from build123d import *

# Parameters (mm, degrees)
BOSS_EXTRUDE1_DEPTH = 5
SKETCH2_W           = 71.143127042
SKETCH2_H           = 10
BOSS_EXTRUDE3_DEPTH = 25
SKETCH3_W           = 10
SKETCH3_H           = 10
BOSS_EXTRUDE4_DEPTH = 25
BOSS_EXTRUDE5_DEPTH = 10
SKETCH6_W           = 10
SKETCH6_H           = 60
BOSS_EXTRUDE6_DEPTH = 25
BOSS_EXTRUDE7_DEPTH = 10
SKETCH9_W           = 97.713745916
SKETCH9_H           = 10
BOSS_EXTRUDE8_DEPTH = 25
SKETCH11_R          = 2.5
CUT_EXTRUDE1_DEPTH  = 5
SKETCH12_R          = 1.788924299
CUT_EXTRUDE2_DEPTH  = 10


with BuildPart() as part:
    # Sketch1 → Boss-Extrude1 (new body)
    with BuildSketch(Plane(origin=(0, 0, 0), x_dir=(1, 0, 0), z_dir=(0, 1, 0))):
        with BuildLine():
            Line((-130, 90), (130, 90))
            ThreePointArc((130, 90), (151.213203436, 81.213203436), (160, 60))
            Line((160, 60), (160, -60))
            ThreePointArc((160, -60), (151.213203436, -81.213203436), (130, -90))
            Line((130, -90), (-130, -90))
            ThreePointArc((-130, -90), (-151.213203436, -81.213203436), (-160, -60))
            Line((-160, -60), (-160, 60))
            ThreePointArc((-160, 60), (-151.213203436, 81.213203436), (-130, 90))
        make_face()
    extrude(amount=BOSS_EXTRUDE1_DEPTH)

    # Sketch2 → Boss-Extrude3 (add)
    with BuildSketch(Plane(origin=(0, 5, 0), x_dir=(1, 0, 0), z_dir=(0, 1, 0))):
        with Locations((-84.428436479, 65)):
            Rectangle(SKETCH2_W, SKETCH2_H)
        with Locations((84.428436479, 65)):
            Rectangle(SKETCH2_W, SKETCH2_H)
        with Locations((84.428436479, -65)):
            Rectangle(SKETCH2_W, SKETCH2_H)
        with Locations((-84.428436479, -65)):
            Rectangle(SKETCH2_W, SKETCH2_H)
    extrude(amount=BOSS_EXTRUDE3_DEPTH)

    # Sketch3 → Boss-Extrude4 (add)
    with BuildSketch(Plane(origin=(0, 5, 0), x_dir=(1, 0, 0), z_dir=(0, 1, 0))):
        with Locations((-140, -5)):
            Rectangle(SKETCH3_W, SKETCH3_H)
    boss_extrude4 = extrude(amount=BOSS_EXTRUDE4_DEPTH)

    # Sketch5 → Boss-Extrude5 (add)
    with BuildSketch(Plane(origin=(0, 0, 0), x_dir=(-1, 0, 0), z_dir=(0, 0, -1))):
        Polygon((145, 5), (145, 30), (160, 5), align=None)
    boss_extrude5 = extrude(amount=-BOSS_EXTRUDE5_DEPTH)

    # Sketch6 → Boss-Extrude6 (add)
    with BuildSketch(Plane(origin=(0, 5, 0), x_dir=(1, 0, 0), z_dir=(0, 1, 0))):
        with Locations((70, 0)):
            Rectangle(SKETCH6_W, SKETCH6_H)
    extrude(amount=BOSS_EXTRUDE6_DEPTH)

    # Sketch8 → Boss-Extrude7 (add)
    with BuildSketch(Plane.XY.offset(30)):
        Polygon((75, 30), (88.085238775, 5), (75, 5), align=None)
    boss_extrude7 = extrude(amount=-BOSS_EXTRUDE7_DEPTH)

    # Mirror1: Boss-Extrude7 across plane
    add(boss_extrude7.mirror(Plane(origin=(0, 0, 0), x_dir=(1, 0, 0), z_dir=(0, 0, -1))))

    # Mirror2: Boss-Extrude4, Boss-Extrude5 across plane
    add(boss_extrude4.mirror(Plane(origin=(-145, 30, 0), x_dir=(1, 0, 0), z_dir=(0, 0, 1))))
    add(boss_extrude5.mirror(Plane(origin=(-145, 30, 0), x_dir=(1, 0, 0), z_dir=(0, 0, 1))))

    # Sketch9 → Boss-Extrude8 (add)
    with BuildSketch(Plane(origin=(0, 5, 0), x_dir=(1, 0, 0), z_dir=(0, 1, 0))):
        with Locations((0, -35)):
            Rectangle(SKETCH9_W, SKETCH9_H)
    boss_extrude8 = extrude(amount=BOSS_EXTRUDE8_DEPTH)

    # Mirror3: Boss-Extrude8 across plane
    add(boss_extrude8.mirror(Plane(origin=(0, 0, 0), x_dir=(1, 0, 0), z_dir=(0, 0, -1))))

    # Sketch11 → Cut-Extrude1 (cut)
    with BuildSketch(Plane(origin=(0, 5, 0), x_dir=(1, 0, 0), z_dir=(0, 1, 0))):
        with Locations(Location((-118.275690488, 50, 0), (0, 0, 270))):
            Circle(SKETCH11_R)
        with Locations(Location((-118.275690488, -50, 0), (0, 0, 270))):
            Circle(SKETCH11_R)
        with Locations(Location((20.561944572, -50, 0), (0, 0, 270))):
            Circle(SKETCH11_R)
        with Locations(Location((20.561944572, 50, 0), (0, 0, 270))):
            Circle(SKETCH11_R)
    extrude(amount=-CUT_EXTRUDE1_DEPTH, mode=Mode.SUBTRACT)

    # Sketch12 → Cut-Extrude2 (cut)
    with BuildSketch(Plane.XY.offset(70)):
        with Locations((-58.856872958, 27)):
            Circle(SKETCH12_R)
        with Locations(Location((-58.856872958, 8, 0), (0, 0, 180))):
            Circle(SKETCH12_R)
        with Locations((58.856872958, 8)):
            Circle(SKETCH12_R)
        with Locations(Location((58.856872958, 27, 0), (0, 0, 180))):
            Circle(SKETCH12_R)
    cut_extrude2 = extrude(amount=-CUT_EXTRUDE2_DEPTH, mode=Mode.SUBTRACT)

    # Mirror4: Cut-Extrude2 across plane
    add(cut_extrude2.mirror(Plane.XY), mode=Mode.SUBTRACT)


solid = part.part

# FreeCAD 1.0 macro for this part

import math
import FreeCAD as App
import Part
import Sketcher
Q = App.Units.Quantity


def add_polygon(sketch, points):
    """Adds a closed chain of lines whose ends are joined by coincident constraints."""
    first, n = sketch.GeometryCount, len(points)
    for a, b in zip(points, points[1:] + points[:1]):
        sketch.addGeometry(Part.LineSegment(App.Vector(*a, 0), App.Vector(*b, 0)), False)
    for i in range(n):
        sketch.addConstraint(Sketcher.Constraint("Coincident", first + i, 2, first + (i + 1) % n, 1))

doc = App.newDocument("Part")
body = doc.addObject("PartDesign::Body", "Body")

sketch1 = body.newObject("Sketcher::SketchObject", "Sketch")
sketch1.AttachmentSupport = (doc.getObject("XZ_Plane"), [""])
sketch1.MapMode = "FlatFace"
sketch1.addGeometry(Part.LineSegment(App.Vector(130, -90, 0), App.Vector(-130, -90, 0)), False)
sketch1.addGeometry(Part.ArcOfCircle(Part.Circle(App.Vector(-130, -60, 0), App.Vector(0, 0, 1), 30), math.radians(180), math.radians(270)), False)
sketch1.addGeometry(Part.LineSegment(App.Vector(-160, -60, 0), App.Vector(-160, 60, 0)), False)
sketch1.addGeometry(Part.ArcOfCircle(Part.Circle(App.Vector(-130, 60, 0), App.Vector(0, 0, 1), 30), math.radians(90), math.radians(180)), False)
sketch1.addGeometry(Part.LineSegment(App.Vector(-130, 90, 0), App.Vector(130, 90, 0)), False)
sketch1.addGeometry(Part.ArcOfCircle(Part.Circle(App.Vector(130, 60, 0), App.Vector(0, 0, 1), 30), math.radians(0), math.radians(90)), False)
sketch1.addGeometry(Part.LineSegment(App.Vector(160, 60, 0), App.Vector(160, -60, 0)), False)
sketch1.addGeometry(Part.ArcOfCircle(Part.Circle(App.Vector(130, -60, 0), App.Vector(0, 0, 1), 30), math.radians(-90), math.radians(0)), False)
sketch1.addConstraint(Sketcher.Constraint("Tangent", 0, 2, 1, 2))
sketch1.addConstraint(Sketcher.Constraint("Tangent", 1, 1, 2, 1))
sketch1.addConstraint(Sketcher.Constraint("Tangent", 2, 2, 3, 2))
sketch1.addConstraint(Sketcher.Constraint("Tangent", 3, 1, 4, 1))
sketch1.addConstraint(Sketcher.Constraint("Tangent", 4, 2, 5, 2))
sketch1.addConstraint(Sketcher.Constraint("Tangent", 5, 1, 6, 1))
sketch1.addConstraint(Sketcher.Constraint("Tangent", 6, 2, 7, 2))
sketch1.addConstraint(Sketcher.Constraint("Tangent", 7, 1, 0, 1))
sketch1.addConstraint(Sketcher.Constraint("Horizontal", 0))
sketch1.addConstraint(Sketcher.Constraint("Vertical", 2))
sketch1.addConstraint(Sketcher.Constraint("Horizontal", 4))
sketch1.addConstraint(Sketcher.Constraint("Vertical", 6))
sketch1.addConstraint(Sketcher.Constraint("Equal", 1, 3))
sketch1.addConstraint(Sketcher.Constraint("Equal", 3, 5))
sketch1.addConstraint(Sketcher.Constraint("Equal", 5, 7))
sketch1.addConstraint(Sketcher.Constraint("Symmetric", 1, 3, 5, 3, -1, 1))
sketch1.addConstraint(Sketcher.Constraint("Radius", 1, Q("30 mm")))
sketch1.addConstraint(Sketcher.Constraint("DistanceX", 0, 2, 0, 1, Q("260 mm")))
sketch1.addConstraint(Sketcher.Constraint("DistanceY", 2, 1, 2, 2, Q("120 mm")))
pad1 = body.newObject("PartDesign::Pad", "Pad")
pad1.Profile = sketch1
pad1.Length = 5
pad1.Reversed = True

sketch2 = body.newObject("Sketcher::SketchObject", "Sketch001")
sketch2.AttachmentSupport = (doc.getObject("XZ_Plane"), [""])
sketch2.MapMode = "FlatFace"
sketch2.AttachmentOffset = App.Placement(App.Vector(0, 0, -5), App.Rotation())
add_polygon(sketch2, [(-120, -70), (-120, -60), (-49, -60), (-49, -70)])
add_polygon(sketch2, [(49, -70), (49, -60), (120, -60), (120, -70)])
add_polygon(sketch2, [(49, 60), (49, 70), (120, 70), (120, 60)])
add_polygon(sketch2, [(-120, 60), (-120, 70), (-49, 70), (-49, 60)])
sketch2.addConstraint(Sketcher.Constraint("Vertical", 0))
sketch2.addConstraint(Sketcher.Constraint("Horizontal", 1))
sketch2.addConstraint(Sketcher.Constraint("Vertical", 2))
sketch2.addConstraint(Sketcher.Constraint("Horizontal", 3))
sketch2.addConstraint(Sketcher.Constraint("Vertical", 4))
sketch2.addConstraint(Sketcher.Constraint("Horizontal", 5))
sketch2.addConstraint(Sketcher.Constraint("Vertical", 6))
sketch2.addConstraint(Sketcher.Constraint("Horizontal", 7))
sketch2.addConstraint(Sketcher.Constraint("Vertical", 8))
sketch2.addConstraint(Sketcher.Constraint("Horizontal", 9))
sketch2.addConstraint(Sketcher.Constraint("Vertical", 10))
sketch2.addConstraint(Sketcher.Constraint("Horizontal", 11))
sketch2.addConstraint(Sketcher.Constraint("Vertical", 12))
sketch2.addConstraint(Sketcher.Constraint("Horizontal", 13))
sketch2.addConstraint(Sketcher.Constraint("Vertical", 14))
sketch2.addConstraint(Sketcher.Constraint("Horizontal", 15))
sketch2.addConstraint(Sketcher.Constraint("Symmetric", 2, 2, 8, 2, -1, 1))
sketch2.addConstraint(Sketcher.Constraint("Symmetric", 0, 2, 10, 2, -1, 1))
sketch2.addConstraint(Sketcher.Constraint("Symmetric", 6, 2, 12, 2, -1, 1))
sketch2.addConstraint(Sketcher.Constraint("Symmetric", 4, 2, 14, 2, -1, 1))
sketch2.addConstraint(Sketcher.Constraint("Symmetric", 1, 2, 4, 2, -2))
sketch2.addConstraint(Sketcher.Constraint("Symmetric", 3, 2, 6, 2, -2))
sketch2.addConstraint(Sketcher.Constraint("DistanceY", 0, 1, 0, 2, Q("10 mm")))
sketch2.addConstraint(Sketcher.Constraint("DistanceX", 0, 2, -1, 1, Q("120 mm")))
sketch2.addConstraint(Sketcher.Constraint("DistanceY", 0, 2, -1, 1, Q("60 mm")))
sketch2.addConstraint(Sketcher.Constraint("DistanceX", 1, 1, 1, 2, Q("71.143127 mm")))
pad2 = body.newObject("PartDesign::Pad", "Pad001")
pad2.Profile = sketch2
pad2.Length = 25
pad2.Reversed = True

sketch3 = body.newObject("Sketcher::SketchObject", "Sketch002")
sketch3.AttachmentSupport = (doc.getObject("XZ_Plane"), [""])
sketch3.MapMode = "FlatFace"
sketch3.AttachmentOffset = App.Placement(App.Vector(0, 0, -5), App.Rotation())
add_polygon(sketch3, [(-145, 0), (-145, 10), (-135, 10), (-135, 0)])
sketch3.addConstraint(Sketcher.Constraint("Vertical", 0))
sketch3.addConstraint(Sketcher.Constraint("Horizontal", 1))
sketch3.addConstraint(Sketcher.Constraint("Vertical", 2))
sketch3.addConstraint(Sketcher.Constraint("Horizontal", 3))
sketch3.addConstraint(Sketcher.Constraint("PointOnObject", 2, 2, -1))
sketch3.addConstraint(Sketcher.Constraint("Equal", 3, 0))
sketch3.addConstraint(Sketcher.Constraint("DistanceX", 1, 1, 1, 2, Q("10 mm")))
sketch3.addConstraint(Sketcher.Constraint("DistanceX", 0, 2, -1, 1, Q("145 mm")))
pad3 = body.newObject("PartDesign::Pad", "Pad002")
pad3.Profile = sketch3
pad3.Length = 25
pad3.Reversed = True

sketch4 = body.newObject("Sketcher::SketchObject", "Sketch003")
sketch4.AttachmentSupport = (doc.getObject("XY_Plane"), [""])
sketch4.MapMode = "FlatFace"
add_polygon(sketch4, [(-145, 30), (-145, 5), (-160, 5)])
sketch4.addConstraint(Sketcher.Constraint("Vertical", 0))
sketch4.addConstraint(Sketcher.Constraint("Horizontal", 1))
sketch4.addConstraint(Sketcher.Constraint("DistanceX", 1, 2, 1, 1, Q("15 mm")))
sketch4.addConstraint(Sketcher.Constraint("DistanceY", 0, 2, 0, 1, Q("25 mm")))
sketch4.addConstraint(Sketcher.Constraint("DistanceX", 0, 2, -1, 1, Q("145 mm")))
sketch4.addConstraint(Sketcher.Constraint("DistanceY", -1, 1, 0, 2, Q("5 mm")))
pad4 = body.newObject("PartDesign::Pad", "Pad003")
pad4.Profile = sketch4
pad4.Length = 10

sketch5 = body.newObject("Sketcher::SketchObject", "Sketch004")
sketch5.AttachmentSupport = (doc.getObject("XZ_Plane"), [""])
sketch5.MapMode = "FlatFace"
sketch5.AttachmentOffset = App.Placement(App.Vector(0, 0, -5), App.Rotation())
add_polygon(sketch5, [(65, -30), (65, 30), (75, 30), (75, -30)])
sketch5.addConstraint(Sketcher.Constraint("Vertical", 0))
sketch5.addConstraint(Sketcher.Constraint("Horizontal", 1))
sketch5.addConstraint(Sketcher.Constraint("Vertical", 2))
sketch5.addConstraint(Sketcher.Constraint("Horizontal", 3))
sketch5.addConstraint(Sketcher.Constraint("DistanceX", 1, 1, 1, 2, Q("10 mm")))
sketch5.addConstraint(Sketcher.Constraint("DistanceY", 0, 1, 0, 2, Q("60 mm")))
sketch5.addConstraint(Sketcher.Constraint("DistanceX", -1, 1, 0, 2, Q("65 mm")))
sketch5.addConstraint(Sketcher.Constraint("DistanceY", -1, 1, 0, 2, Q("30 mm")))
pad5 = body.newObject("PartDesign::Pad", "Pad004")
pad5.Profile = sketch5
pad5.Length = 25
pad5.Reversed = True

sketch6 = body.newObject("Sketcher::SketchObject", "Sketch005")
sketch6.AttachmentSupport = (doc.getObject("XY_Plane"), [""])
sketch6.MapMode = "FlatFace"
sketch6.AttachmentOffset = App.Placement(App.Vector(0, 0, 30), App.Rotation())
add_polygon(sketch6, [(88, 5), (75, 30), (75, 5)])
sketch6.addConstraint(Sketcher.Constraint("Vertical", 1))
sketch6.addConstraint(Sketcher.Constraint("Horizontal", 2))
sketch6.addConstraint(Sketcher.Constraint("DistanceY", 1, 2, 1, 1, Q("25 mm")))
sketch6.addConstraint(Sketcher.Constraint("DistanceX", -1, 1, 0, 2, Q("75 mm")))
sketch6.addConstraint(Sketcher.Constraint("DistanceY", -1, 1, 0, 2, Q("30 mm")))
sketch6.addConstraint(Sketcher.Constraint("DistanceX", 2, 1, 2, 2, Q("13.085239 mm")))
pad6 = body.newObject("PartDesign::Pad", "Pad005")
pad6.Profile = sketch6
pad6.Length = 10
pad6.Reversed = True
doc.recompute()

mirrored = body.newObject("PartDesign::Mirrored", "Mirrored")
mirrored.Originals = [pad6]
mirrored.MirrorPlane = (doc.getObject("XY_Plane"), [""])
body.Tip = mirrored
doc.recompute()

mirrored2 = body.newObject("PartDesign::Mirrored", "Mirrored001")
mirrored2.Originals = [pad3, pad4]
mirrored2.MirrorPlane = (doc.getObject("XY_Plane"), [""])
body.Tip = mirrored2

sketch7 = body.newObject("Sketcher::SketchObject", "Sketch006")
sketch7.AttachmentSupport = (doc.getObject("XZ_Plane"), [""])
sketch7.MapMode = "FlatFace"
sketch7.AttachmentOffset = App.Placement(App.Vector(0, 0, -5), App.Rotation())
add_polygon(sketch7, [(-49, 30), (-49, 40), (49, 40), (49, 30)])
sketch7.addConstraint(Sketcher.Constraint("Vertical", 0))
sketch7.addConstraint(Sketcher.Constraint("Horizontal", 1))
sketch7.addConstraint(Sketcher.Constraint("Vertical", 2))
sketch7.addConstraint(Sketcher.Constraint("Horizontal", 3))
sketch7.addConstraint(Sketcher.Constraint("DistanceY", 0, 1, 0, 2, Q("10 mm")))
sketch7.addConstraint(Sketcher.Constraint("DistanceY", -1, 1, 0, 2, Q("40 mm")))
sketch7.addConstraint(Sketcher.Constraint("DistanceX", 1, 1, 1, 2, Q("97.713746 mm")))
sketch7.addConstraint(Sketcher.Constraint("DistanceX", 0, 2, -1, 1, Q("48.856873 mm")))
pad7 = body.newObject("PartDesign::Pad", "Pad006")
pad7.Profile = sketch7
pad7.Length = 25
pad7.Reversed = True
doc.recompute()

mirrored3 = body.newObject("PartDesign::Mirrored", "Mirrored002")
mirrored3.Originals = [pad7]
mirrored3.MirrorPlane = (doc.getObject("XY_Plane"), [""])
body.Tip = mirrored3

sketch8 = body.newObject("Sketcher::SketchObject", "Sketch007")
sketch8.AttachmentSupport = (doc.getObject("XZ_Plane"), [""])
sketch8.MapMode = "FlatFace"
sketch8.AttachmentOffset = App.Placement(App.Vector(0, 0, -5), App.Rotation())
sketch8.addGeometry(Part.Circle(App.Vector(-118.3, -50, 0), App.Vector(0, 0, 1), 2.5), False)
sketch8.addGeometry(Part.Circle(App.Vector(-118.3, 50, 0), App.Vector(0, 0, 1), 2.5), False)
sketch8.addGeometry(Part.Circle(App.Vector(20.6, 50, 0), App.Vector(0, 0, 1), 2.5), False)
sketch8.addGeometry(Part.Circle(App.Vector(20.6, -50, 0), App.Vector(0, 0, 1), 2.5), False)
sketch8.addConstraint(Sketcher.Constraint("Equal", 0, 1))
sketch8.addConstraint(Sketcher.Constraint("Equal", 1, 2))
sketch8.addConstraint(Sketcher.Constraint("Equal", 2, 3))
sketch8.addConstraint(Sketcher.Constraint("Symmetric", 0, 3, 1, 3, -1))
sketch8.addConstraint(Sketcher.Constraint("Symmetric", 2, 3, 3, 3, -1))
sketch8.addConstraint(Sketcher.Constraint("Horizontal", 1, 3, 2, 3))
sketch8.addConstraint(Sketcher.Constraint("Diameter", 0, Q("5 mm")))
sketch8.addConstraint(Sketcher.Constraint("DistanceY", 0, 3, -1, 1, Q("50 mm")))
sketch8.addConstraint(Sketcher.Constraint("DistanceX", 0, 3, -1, 1, Q("118.27569 mm")))
sketch8.addConstraint(Sketcher.Constraint("DistanceX", -1, 1, 2, 3, Q("20.561945 mm")))
pocket1 = body.newObject("PartDesign::Pocket", "Pocket")
pocket1.Profile = sketch8
pocket1.Length = 5
pocket1.Reversed = True

sketch9 = body.newObject("Sketcher::SketchObject", "Sketch008")
sketch9.AttachmentSupport = (doc.getObject("XY_Plane"), [""])
sketch9.MapMode = "FlatFace"
sketch9.AttachmentOffset = App.Placement(App.Vector(0, 0, 70), App.Rotation())
sketch9.addGeometry(Part.Circle(App.Vector(-58.9, 27, 0), App.Vector(0, 0, 1), 1.8), False)
sketch9.addGeometry(Part.Circle(App.Vector(-58.9, 8, 0), App.Vector(0, 0, 1), 1.8), False)
sketch9.addGeometry(Part.Circle(App.Vector(58.9, 8, 0), App.Vector(0, 0, 1), 1.8), False)
sketch9.addGeometry(Part.Circle(App.Vector(58.9, 27, 0), App.Vector(0, 0, 1), 1.8), False)
sketch9.addConstraint(Sketcher.Constraint("Equal", 0, 1))
sketch9.addConstraint(Sketcher.Constraint("Equal", 1, 2))
sketch9.addConstraint(Sketcher.Constraint("Equal", 2, 3))
sketch9.addConstraint(Sketcher.Constraint("Symmetric", 1, 3, 2, 3, -2))
sketch9.addConstraint(Sketcher.Constraint("Symmetric", 0, 3, 3, 3, -2))
sketch9.addConstraint(Sketcher.Constraint("Vertical", 0, 3, 1, 3))
sketch9.addConstraint(Sketcher.Constraint("DistanceY", -1, 1, 0, 3, Q("27 mm")))
sketch9.addConstraint(Sketcher.Constraint("DistanceY", -1, 1, 1, 3, Q("8 mm")))
sketch9.addConstraint(Sketcher.Constraint("Diameter", 0, Q("3.577849 mm")))
sketch9.addConstraint(Sketcher.Constraint("DistanceX", 0, 3, -1, 1, Q("58.856873 mm")))
pocket2 = body.newObject("PartDesign::Pocket", "Pocket001")
pocket2.Profile = sketch9
pocket2.Length = 10
doc.recompute()

mirrored4 = body.newObject("PartDesign::Mirrored", "Mirrored003")
mirrored4.Originals = [pocket2]
mirrored4.MirrorPlane = (doc.getObject("XY_Plane"), [""])
body.Tip = mirrored4

doc.recompute()
